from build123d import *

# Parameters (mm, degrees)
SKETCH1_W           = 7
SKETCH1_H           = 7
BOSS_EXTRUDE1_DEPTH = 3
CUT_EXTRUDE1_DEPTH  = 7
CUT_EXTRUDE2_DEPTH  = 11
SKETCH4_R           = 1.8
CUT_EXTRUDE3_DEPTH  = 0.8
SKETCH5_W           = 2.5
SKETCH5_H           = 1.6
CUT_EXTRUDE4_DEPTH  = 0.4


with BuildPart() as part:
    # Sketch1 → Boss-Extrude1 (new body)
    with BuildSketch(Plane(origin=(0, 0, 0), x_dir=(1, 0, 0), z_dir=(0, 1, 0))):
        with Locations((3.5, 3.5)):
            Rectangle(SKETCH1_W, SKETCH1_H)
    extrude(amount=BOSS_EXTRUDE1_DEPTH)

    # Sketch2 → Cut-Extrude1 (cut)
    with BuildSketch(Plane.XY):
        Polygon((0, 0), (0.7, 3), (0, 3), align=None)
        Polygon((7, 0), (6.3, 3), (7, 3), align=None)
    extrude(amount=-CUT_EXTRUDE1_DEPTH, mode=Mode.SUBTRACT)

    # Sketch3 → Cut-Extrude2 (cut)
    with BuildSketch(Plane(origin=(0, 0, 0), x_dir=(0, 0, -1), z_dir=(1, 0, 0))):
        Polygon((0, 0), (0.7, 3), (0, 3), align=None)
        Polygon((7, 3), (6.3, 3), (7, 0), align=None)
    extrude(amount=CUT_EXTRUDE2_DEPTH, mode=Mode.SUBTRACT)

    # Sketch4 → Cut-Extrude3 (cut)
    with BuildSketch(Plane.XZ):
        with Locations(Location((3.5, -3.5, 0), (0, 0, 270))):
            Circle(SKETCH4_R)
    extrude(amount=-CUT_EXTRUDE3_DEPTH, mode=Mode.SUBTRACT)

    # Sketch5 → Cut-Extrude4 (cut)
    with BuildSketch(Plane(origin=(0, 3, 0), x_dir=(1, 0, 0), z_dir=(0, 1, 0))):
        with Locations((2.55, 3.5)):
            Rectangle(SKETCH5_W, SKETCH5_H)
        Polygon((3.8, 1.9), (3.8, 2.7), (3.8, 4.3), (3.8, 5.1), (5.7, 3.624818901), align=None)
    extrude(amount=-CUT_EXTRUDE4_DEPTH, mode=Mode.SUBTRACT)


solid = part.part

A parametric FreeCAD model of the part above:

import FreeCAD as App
import Part
import Sketcher
from FreeCAD import Vector

doc = App.newDocument("Part")
body = doc.addObject("PartDesign::Body", "Body")

# Sketch on XZ plane
sketch1 = body.newObject("Sketcher::SketchObject", "Sketch")
sketch1.AttachmentSupport = (doc.getObject("XZ_Plane"), [""])
sketch1.MapMode = "FlatFace"
sketch1.addGeometry(Part.LineSegment(Vector(0, -7, 0), Vector(0, 0, 0)), False)
sketch1.addGeometry(Part.LineSegment(Vector(0, 0, 0), Vector(7, 0, 0)), False)
sketch1.addGeometry(Part.LineSegment(Vector(7, 0, 0), Vector(7, -7, 0)), False)
sketch1.addGeometry(Part.LineSegment(Vector(7, -7, 0), Vector(0, -7, 0)), False)
sketch1.addConstraint(Sketcher.Constraint("Coincident", 0, 2, 1, 1))
sketch1.addConstraint(Sketcher.Constraint("Coincident", 1, 2, 2, 1))
sketch1.addConstraint(Sketcher.Constraint("Coincident", 2, 2, 3, 1))
sketch1.addConstraint(Sketcher.Constraint("Coincident", 3, 2, 0, 1))
sketch1.addConstraint(Sketcher.Constraint("Vertical", 0))
sketch1.addConstraint(Sketcher.Constraint("Horizontal", 1))
sketch1.addConstraint(Sketcher.Constraint("Vertical", 2))
sketch1.addConstraint(Sketcher.Constraint("Horizontal", 3))
sketch1.addConstraint(Sketcher.Constraint("Coincident", 0, 2, -1, 1))
sketch1.addConstraint(Sketcher.Constraint("Equal", 3, 0))
sketch1.addConstraint(Sketcher.Constraint("DistanceX", 1, 1, 1, 2, 7.0))
pad1 = body.newObject("PartDesign::Pad", "Pad")
pad1.Profile = sketch1
pad1.Length = 3
pad1.Reversed = True

# Sketch on XY plane
sketch2 = body.newObject("Sketcher::SketchObject", "Sketch001")
sketch2.AttachmentSupport = (doc.getObject("XY_Plane"), [""])
sketch2.MapMode = "FlatFace"
sketch2.addGeometry(Part.LineSegment(Vector(0, 0, 0), Vector(0.7, 3, 0)), False)
sketch2.addGeometry(Part.LineSegment(Vector(0.7, 3, 0), Vector(0, 3, 0)), False)
sketch2.addGeometry(Part.LineSegment(Vector(0, 3, 0), Vector(0, 0, 0)), False)
sketch2.addGeometry(Part.LineSegment(Vector(6.3, 3, 0), Vector(7, 0, 0)), False)
sketch2.addGeometry(Part.LineSegment(Vector(7, 0, 0), Vector(7, 3, 0)), False)
sketch2.addGeometry(Part.LineSegment(Vector(7, 3, 0), Vector(6.3, 3, 0)), False)
sketch2.addConstraint(Sketcher.Constraint("Coincident", 0, 2, 1, 1))
sketch2.addConstraint(Sketcher.Constraint("Coincident", 1, 2, 2, 1))
sketch2.addConstraint(Sketcher.Constraint("Coincident", 2, 2, 0, 1))
sketch2.addConstraint(Sketcher.Constraint("Coincident", 3, 2, 4, 1))
sketch2.addConstraint(Sketcher.Constraint("Coincident", 4, 2, 5, 1))
sketch2.addConstraint(Sketcher.Constraint("Coincident", 5, 2, 3, 1))
sketch2.addConstraint(Sketcher.Constraint("Horizontal", 1))
sketch2.addConstraint(Sketcher.Constraint("Vertical", 2))
sketch2.addConstraint(Sketcher.Constraint("Vertical", 4))
sketch2.addConstraint(Sketcher.Constraint("Horizontal", 5))
sketch2.addConstraint(Sketcher.Constraint("Coincident", 2, 2, -1, 1))
sketch2.addConstraint(Sketcher.Constraint("PointOnObject", 3, 2, -1))
sketch2.addConstraint(Sketcher.Constraint("Horizontal", 1, 2, 4, 2))
sketch2.addConstraint(Sketcher.Constraint("Equal", 1, 5))
sketch2.addConstraint(Sketcher.Constraint("DistanceY", 2, 2, 2, 1, 3.0))
sketch2.addConstraint(Sketcher.Constraint("DistanceX", 1, 2, 1, 1, 0.7))
sketch2.addConstraint(Sketcher.Constraint("DistanceX", -1, 1, 3, 2, 7.0))
pocket1 = body.newObject("PartDesign::Pocket", "Pocket")
pocket1.Profile = sketch2
pocket1.Length = 7

# Sketch on YZ plane
sketch3 = body.newObject("Sketcher::SketchObject", "Sketch002")
sketch3.AttachmentSupport = (doc.getObject("YZ_Plane"), [""])
sketch3.MapMode = "FlatFace"
sketch3.addGeometry(Part.LineSegment(Vector(0, 0, 0), Vector(3, -0.7, 0)), False)
sketch3.addGeometry(Part.LineSegment(Vector(3, -0.7, 0), Vector(3, 0, 0)), False)
sketch3.addGeometry(Part.LineSegment(Vector(3, 0, 0), Vector(0, 0, 0)), False)
sketch3.addGeometry(Part.LineSegment(Vector(3, -7, 0), Vector(3, -6.3, 0)), False)
sketch3.addGeometry(Part.LineSegment(Vector(3, -6.3, 0), Vector(0, -7, 0)), False)
sketch3.addGeometry(Part.LineSegment(Vector(0, -7, 0), Vector(3, -7, 0)), False)
sketch3.addConstraint(Sketcher.Constraint("Coincident", 0, 2, 1, 1))
sketch3.addConstraint(Sketcher.Constraint("Coincident", 1, 2, 2, 1))
sketch3.addConstraint(Sketcher.Constraint("Coincident", 2, 2, 0, 1))
sketch3.addConstraint(Sketcher.Constraint("Coincident", 3, 2, 4, 1))
sketch3.addConstraint(Sketcher.Constraint("Coincident", 4, 2, 5, 1))
sketch3.addConstraint(Sketcher.Constraint("Coincident", 5, 2, 3, 1))
sketch3.addConstraint(Sketcher.Constraint("Vertical", 1))
sketch3.addConstraint(Sketcher.Constraint("Horizontal", 2))
sketch3.addConstraint(Sketcher.Constraint("Vertical", 3))
sketch3.addConstraint(Sketcher.Constraint("Horizontal", 5))
sketch3.addConstraint(Sketcher.Constraint("Coincident", 2, 2, -1, 1))
sketch3.addConstraint(Sketcher.Constraint("PointOnObject", 4, 2, -2))
sketch3.addConstraint(Sketcher.Constraint("Vertical", 1, 2, 3, 2))
sketch3.addConstraint(Sketcher.Constraint("Equal", 1, 3))
sketch3.addConstraint(Sketcher.Constraint("DistanceX", 2, 2, 2, 1, 3.0))
sketch3.addConstraint(Sketcher.Constraint("DistanceY", 1, 1, 1, 2, 0.7))
sketch3.addConstraint(Sketcher.Constraint("DistanceY", 4, 2, -1, 1, 7.0))
pocket2 = body.newObject("PartDesign::Pocket", "Pocket001")
pocket2.Profile = sketch3
pocket2.Length = 11
pocket2.Reversed = True

# Sketch on XZ plane
sketch4 = body.newObject("Sketcher::SketchObject", "Sketch003")
sketch4.AttachmentSupport = (doc.getObject("XZ_Plane"), [""])
sketch4.MapMode = "FlatFace"
sketch4.addGeometry(Part.Circle(Vector(3.5, -3.5, 0), Vector(0, 0, 1), 1.8), False)
sketch4.addConstraint(Sketcher.Constraint("Diameter", 0, 3.6))
sketch4.addConstraint(Sketcher.Constraint("DistanceX", -1, 1, 0, 3, 3.5))
sketch4.addConstraint(Sketcher.Constraint("DistanceY", 0, 3, -1, 1, 3.5))
pocket3 = body.newObject("PartDesign::Pocket", "Pocket002")
pocket3.Profile = sketch4
pocket3.Length = 0.8

# Sketch on XZ plane
sketch5 = body.newObject("Sketcher::SketchObject", "Sketch004")
sketch5.AttachmentSupport = (doc.getObject("XZ_Plane"), [""])
sketch5.MapMode = "FlatFace"
sketch5.AttachmentOffset = App.Placement(Vector(0, 0, -3), App.Rotation())
sketch5.addGeometry(Part.LineSegment(Vector(1.3, -4.3, 0), Vector(1.3, -2.7, 0)), False)
sketch5.addGeometry(Part.LineSegment(Vector(1.3, -2.7, 0), Vector(3.8, -2.7, 0)), False)
sketch5.addGeometry(Part.LineSegment(Vector(3.8, -2.7, 0), Vector(3.8, -1.9, 0)), False)
sketch5.addGeometry(Part.LineSegment(Vector(3.8, -1.9, 0), Vector(5.7, -3.6, 0)), False)
sketch5.addGeometry(Part.LineSegment(Vector(5.7, -3.6, 0), Vector(3.8, -5.1, 0)), False)
sketch5.addGeometry(Part.LineSegment(Vector(3.8, -5.1, 0), Vector(3.8, -4.3, 0)), False)
sketch5.addGeometry(Part.LineSegment(Vector(3.8, -4.3, 0), Vector(1.3, -4.3, 0)), False)
sketch5.addConstraint(Sketcher.Constraint("Coincident", 0, 2, 1, 1))
sketch5.addConstraint(Sketcher.Constraint("Coincident", 1, 2, 2, 1))
sketch5.addConstraint(Sketcher.Constraint("Coincident", 2, 2, 3, 1))
sketch5.addConstraint(Sketcher.Constraint("Coincident", 3, 2, 4, 1))
sketch5.addConstraint(Sketcher.Constraint("Coincident", 4, 2, 5, 1))
sketch5.addConstraint(Sketcher.Constraint("Coincident", 5, 2, 6, 1))
sketch5.addConstraint(Sketcher.Constraint("Coincident", 6, 2, 0, 1))
sketch5.addConstraint(Sketcher.Constraint("Vertical", 0))
sketch5.addConstraint(Sketcher.Constraint("Horizontal", 1))
sketch5.addConstraint(Sketcher.Constraint("Vertical", 2))
sketch5.addConstraint(Sketcher.Constraint("Vertical", 5))
sketch5.addConstraint(Sketcher.Constraint("Horizontal", 6))
sketch5.addConstraint(Sketcher.Constraint("Vertical", 2, 2, 4, 2))
sketch5.addConstraint(Sketcher.Constraint("Equal", 2, 5))
sketch5.addConstraint(Sketcher.Constraint("DistanceX", 1, 1, 1, 2, 2.5))
sketch5.addConstraint(Sketcher.Constraint("DistanceY", 0, 1, 0, 2, 1.6))
sketch5.addConstraint(Sketcher.Constraint("DistanceY", 2, 1, 2, 2, 0.8))
sketch5.addConstraint(Sketcher.Constraint("DistanceX", -1, 1, 0, 2, 1.3))
sketch5.addConstraint(Sketcher.Constraint("DistanceY", 0, 2, -1, 1, 2.7))
sketch5.addConstraint(Sketcher.Constraint("DistanceX", -1, 1, 3, 2, 5.7))
sketch5.addConstraint(Sketcher.Constraint("DistanceY", 3, 2, -1, 1, 3.624819))
pocket4 = body.newObject("PartDesign::Pocket", "Pocket003")
pocket4.Profile = sketch5
pocket4.Length = 0.4
pocket4.Reversed = True

doc.recompute()
